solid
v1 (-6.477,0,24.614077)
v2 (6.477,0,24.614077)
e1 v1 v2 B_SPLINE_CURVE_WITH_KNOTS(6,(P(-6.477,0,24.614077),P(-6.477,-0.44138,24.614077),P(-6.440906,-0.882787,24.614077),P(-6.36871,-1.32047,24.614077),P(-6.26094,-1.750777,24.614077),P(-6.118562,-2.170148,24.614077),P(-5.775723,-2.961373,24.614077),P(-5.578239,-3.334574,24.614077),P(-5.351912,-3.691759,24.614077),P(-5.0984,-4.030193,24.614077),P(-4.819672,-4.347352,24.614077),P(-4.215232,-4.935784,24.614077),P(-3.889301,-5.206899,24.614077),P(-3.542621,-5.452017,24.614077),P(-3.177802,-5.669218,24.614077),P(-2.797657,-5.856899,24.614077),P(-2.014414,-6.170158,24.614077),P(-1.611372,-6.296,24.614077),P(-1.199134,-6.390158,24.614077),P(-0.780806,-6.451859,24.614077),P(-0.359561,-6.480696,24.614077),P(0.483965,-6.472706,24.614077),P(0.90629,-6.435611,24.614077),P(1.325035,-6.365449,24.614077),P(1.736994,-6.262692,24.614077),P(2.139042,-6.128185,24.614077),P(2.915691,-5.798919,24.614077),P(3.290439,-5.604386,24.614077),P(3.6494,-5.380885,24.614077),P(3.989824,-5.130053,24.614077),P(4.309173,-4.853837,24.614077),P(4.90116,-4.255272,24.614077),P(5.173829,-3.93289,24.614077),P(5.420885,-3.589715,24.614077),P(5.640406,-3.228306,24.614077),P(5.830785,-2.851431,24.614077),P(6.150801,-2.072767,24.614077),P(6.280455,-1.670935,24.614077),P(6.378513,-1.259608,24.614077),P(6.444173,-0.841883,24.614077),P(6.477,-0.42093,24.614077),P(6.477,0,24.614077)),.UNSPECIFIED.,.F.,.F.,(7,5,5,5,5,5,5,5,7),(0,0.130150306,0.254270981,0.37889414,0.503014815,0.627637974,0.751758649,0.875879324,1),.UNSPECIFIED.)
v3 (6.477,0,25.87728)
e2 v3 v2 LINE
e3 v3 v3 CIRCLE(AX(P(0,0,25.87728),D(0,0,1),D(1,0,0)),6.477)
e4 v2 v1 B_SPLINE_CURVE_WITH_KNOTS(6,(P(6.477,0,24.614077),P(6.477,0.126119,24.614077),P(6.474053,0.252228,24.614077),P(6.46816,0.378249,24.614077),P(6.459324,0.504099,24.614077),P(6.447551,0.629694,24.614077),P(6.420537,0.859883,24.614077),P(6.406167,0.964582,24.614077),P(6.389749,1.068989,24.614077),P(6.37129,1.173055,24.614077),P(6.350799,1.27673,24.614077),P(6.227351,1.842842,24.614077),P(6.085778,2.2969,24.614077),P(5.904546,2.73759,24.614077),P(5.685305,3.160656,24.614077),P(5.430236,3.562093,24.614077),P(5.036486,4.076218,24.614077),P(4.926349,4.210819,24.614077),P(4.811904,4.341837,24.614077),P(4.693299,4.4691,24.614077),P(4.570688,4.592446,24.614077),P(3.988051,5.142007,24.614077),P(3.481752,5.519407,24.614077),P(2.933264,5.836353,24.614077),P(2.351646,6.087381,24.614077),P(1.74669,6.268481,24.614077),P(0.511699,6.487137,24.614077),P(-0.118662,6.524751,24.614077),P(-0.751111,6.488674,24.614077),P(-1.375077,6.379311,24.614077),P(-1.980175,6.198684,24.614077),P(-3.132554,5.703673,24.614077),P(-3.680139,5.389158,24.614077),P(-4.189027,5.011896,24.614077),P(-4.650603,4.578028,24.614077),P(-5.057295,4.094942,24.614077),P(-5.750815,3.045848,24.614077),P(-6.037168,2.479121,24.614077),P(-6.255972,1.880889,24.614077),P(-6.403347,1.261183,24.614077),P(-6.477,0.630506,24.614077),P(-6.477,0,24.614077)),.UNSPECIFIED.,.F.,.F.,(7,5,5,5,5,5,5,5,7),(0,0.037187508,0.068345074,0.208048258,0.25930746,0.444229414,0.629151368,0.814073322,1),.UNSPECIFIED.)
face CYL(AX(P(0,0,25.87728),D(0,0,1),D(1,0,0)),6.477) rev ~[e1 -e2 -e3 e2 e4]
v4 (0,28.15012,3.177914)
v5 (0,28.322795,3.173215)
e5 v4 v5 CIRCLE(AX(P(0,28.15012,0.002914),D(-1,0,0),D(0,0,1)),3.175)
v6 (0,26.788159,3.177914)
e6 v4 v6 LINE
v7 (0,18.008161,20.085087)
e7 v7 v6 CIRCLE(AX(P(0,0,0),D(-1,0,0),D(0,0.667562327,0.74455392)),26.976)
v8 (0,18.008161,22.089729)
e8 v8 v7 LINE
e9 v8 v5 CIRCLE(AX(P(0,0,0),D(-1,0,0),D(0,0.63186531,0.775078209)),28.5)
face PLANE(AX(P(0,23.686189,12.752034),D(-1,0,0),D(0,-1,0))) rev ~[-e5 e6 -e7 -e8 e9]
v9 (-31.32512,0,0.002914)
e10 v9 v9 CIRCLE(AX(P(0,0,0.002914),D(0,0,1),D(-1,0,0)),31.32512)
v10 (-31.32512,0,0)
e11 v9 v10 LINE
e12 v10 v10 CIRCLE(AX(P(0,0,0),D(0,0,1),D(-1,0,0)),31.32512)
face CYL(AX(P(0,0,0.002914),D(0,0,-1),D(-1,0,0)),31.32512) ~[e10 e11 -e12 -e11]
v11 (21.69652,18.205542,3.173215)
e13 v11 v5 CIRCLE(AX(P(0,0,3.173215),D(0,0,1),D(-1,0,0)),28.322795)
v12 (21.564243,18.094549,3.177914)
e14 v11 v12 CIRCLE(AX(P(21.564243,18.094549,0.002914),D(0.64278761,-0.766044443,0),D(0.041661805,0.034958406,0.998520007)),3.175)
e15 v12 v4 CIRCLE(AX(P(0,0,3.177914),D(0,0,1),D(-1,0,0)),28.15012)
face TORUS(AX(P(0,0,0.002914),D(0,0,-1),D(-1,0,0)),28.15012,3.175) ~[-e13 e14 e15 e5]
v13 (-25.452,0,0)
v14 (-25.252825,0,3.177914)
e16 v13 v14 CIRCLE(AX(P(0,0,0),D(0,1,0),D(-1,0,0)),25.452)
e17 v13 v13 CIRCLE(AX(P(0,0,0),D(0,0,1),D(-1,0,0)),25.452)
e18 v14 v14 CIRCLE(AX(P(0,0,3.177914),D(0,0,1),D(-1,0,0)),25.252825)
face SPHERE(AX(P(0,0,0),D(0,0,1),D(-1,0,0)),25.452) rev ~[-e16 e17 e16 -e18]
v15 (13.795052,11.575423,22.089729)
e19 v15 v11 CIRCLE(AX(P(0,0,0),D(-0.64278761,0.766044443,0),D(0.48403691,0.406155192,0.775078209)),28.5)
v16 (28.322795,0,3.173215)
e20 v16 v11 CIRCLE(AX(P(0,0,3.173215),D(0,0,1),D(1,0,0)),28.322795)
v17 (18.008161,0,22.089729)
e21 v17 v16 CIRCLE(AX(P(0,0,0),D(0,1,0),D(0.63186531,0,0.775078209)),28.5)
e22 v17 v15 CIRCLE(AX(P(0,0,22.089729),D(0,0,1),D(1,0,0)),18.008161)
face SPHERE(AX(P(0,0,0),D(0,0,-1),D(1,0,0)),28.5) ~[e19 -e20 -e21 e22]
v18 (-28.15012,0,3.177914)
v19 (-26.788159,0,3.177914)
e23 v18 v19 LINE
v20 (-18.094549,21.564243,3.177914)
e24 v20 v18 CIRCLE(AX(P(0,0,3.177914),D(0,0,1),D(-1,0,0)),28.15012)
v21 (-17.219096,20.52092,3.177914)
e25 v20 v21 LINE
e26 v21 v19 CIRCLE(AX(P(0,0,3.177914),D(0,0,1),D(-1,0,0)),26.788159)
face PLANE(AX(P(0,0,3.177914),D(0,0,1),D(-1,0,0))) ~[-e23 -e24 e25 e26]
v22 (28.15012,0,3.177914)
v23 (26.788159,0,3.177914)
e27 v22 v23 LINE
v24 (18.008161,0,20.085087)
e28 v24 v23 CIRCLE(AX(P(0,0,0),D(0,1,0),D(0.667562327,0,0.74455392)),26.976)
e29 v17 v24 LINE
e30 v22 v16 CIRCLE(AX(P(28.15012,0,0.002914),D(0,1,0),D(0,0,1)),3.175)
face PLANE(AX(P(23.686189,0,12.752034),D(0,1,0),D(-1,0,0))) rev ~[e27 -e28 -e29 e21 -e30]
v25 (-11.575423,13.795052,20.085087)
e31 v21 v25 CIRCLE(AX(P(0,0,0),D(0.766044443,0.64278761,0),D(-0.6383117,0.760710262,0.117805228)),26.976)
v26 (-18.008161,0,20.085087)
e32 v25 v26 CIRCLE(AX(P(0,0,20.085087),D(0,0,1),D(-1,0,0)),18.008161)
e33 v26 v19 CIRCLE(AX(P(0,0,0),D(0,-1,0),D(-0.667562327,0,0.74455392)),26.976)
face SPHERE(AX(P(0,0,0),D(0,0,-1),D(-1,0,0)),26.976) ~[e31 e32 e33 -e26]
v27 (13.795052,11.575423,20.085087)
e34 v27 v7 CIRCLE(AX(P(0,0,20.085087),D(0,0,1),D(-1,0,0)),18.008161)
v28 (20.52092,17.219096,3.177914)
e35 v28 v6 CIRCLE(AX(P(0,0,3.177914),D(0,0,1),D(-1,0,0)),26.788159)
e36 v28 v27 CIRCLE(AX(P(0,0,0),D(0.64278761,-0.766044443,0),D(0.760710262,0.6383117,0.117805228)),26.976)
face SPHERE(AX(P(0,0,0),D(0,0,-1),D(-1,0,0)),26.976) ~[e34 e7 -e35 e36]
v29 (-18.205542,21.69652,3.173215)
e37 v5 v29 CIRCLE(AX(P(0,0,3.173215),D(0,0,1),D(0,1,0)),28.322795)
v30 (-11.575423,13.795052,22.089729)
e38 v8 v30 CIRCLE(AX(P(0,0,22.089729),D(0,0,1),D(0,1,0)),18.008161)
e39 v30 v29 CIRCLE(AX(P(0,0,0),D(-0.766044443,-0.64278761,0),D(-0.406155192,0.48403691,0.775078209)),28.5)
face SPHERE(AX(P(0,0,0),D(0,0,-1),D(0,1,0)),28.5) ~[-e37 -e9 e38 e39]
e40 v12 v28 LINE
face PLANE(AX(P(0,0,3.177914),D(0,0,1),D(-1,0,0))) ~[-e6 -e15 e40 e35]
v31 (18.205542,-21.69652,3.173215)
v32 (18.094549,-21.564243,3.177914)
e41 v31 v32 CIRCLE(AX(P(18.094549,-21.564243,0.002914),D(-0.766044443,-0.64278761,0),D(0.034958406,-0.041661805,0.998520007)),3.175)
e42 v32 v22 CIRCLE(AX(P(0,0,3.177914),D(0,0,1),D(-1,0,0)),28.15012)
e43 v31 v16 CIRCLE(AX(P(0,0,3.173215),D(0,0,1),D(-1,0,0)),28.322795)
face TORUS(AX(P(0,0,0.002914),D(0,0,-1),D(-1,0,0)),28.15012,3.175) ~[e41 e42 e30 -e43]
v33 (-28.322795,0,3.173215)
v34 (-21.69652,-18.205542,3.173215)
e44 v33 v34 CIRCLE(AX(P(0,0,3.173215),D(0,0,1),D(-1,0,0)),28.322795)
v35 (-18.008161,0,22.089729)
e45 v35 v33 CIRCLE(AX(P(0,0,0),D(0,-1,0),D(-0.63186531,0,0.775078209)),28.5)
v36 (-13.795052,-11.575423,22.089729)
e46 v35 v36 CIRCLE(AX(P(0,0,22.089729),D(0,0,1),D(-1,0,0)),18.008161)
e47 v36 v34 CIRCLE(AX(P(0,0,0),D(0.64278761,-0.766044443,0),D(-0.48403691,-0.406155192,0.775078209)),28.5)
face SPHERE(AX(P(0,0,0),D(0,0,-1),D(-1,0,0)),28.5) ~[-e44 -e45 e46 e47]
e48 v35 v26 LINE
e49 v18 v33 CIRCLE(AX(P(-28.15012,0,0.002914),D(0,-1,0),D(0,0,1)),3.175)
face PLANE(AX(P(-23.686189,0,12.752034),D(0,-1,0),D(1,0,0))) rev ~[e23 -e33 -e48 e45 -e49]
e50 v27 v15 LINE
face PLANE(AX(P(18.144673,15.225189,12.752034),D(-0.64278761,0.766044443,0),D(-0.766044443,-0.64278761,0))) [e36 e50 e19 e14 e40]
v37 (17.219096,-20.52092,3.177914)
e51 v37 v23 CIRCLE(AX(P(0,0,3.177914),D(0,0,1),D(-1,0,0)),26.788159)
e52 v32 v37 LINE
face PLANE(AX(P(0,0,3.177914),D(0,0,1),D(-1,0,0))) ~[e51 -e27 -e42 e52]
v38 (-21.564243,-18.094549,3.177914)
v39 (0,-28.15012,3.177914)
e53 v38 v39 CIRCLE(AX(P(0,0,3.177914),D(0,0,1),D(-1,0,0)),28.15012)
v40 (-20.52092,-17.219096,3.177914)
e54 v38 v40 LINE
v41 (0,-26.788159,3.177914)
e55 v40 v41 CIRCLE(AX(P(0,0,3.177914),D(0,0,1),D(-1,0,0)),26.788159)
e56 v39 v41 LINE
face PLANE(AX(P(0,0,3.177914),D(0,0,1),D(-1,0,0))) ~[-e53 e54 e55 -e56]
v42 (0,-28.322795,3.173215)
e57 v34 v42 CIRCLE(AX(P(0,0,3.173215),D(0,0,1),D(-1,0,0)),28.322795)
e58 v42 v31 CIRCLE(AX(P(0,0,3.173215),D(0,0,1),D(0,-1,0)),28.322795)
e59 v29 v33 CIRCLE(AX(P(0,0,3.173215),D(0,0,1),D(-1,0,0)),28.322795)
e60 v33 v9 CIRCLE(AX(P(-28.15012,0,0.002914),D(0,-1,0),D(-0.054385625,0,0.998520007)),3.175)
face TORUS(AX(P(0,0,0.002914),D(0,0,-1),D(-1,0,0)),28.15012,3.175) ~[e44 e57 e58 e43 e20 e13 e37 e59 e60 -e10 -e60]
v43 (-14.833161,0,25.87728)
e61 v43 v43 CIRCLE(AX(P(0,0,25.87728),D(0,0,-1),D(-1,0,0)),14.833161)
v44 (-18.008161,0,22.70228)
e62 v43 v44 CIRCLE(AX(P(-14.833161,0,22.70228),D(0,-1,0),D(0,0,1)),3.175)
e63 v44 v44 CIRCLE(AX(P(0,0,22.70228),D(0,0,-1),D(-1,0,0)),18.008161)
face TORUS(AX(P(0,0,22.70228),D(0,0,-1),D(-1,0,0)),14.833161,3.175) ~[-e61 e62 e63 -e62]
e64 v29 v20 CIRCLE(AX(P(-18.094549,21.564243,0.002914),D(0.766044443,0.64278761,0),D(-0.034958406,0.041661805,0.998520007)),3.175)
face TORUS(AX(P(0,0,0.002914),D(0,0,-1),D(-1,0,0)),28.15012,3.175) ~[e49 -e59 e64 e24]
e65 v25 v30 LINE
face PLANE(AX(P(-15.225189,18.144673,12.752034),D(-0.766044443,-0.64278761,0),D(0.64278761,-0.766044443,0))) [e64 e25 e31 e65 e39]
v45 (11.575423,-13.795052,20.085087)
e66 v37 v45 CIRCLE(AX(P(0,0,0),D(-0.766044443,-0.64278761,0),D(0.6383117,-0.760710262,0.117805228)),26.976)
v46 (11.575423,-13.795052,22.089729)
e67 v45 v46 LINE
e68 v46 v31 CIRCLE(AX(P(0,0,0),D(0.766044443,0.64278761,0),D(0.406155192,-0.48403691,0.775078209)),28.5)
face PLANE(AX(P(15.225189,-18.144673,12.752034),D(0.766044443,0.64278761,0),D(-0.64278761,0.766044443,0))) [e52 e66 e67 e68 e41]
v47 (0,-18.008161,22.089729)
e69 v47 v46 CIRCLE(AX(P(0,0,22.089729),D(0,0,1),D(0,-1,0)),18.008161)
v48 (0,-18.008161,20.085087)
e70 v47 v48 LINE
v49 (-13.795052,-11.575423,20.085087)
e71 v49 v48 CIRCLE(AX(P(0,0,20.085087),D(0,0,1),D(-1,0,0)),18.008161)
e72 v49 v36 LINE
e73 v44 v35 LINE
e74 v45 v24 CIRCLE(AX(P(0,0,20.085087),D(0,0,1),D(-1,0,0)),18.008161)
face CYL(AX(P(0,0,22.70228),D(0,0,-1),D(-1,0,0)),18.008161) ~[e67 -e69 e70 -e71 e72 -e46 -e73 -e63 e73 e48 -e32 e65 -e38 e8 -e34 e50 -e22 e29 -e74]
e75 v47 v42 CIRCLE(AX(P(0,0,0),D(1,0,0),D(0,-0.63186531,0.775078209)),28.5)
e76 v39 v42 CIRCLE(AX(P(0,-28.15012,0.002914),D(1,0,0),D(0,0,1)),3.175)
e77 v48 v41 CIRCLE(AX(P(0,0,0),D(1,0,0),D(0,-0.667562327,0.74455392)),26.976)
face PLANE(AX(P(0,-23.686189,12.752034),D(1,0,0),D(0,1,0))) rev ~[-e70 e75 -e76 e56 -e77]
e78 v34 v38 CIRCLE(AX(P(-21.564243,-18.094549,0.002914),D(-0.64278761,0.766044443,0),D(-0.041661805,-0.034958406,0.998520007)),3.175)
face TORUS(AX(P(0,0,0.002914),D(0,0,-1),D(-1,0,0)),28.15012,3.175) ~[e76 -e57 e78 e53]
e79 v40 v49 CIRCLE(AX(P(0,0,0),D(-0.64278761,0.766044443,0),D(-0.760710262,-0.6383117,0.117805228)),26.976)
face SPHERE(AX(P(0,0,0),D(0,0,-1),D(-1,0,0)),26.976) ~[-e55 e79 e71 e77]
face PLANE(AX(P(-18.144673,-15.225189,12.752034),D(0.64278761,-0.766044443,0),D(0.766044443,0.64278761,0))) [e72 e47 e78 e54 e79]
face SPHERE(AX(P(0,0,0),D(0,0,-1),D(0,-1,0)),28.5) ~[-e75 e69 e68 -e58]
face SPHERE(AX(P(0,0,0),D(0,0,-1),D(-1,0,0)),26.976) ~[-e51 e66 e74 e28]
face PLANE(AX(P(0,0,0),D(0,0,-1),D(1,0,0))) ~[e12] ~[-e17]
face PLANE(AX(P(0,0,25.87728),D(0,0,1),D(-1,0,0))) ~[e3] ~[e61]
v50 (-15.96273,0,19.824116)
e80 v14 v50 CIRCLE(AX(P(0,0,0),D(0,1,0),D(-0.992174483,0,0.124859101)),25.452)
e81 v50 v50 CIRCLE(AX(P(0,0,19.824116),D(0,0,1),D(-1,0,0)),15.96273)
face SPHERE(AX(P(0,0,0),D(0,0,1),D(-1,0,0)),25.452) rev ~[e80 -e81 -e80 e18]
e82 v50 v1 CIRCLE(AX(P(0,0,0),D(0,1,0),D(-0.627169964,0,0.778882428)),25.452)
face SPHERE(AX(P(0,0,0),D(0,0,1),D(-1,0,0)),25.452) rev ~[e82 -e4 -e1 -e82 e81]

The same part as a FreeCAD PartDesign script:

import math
import FreeCAD as App
import Part
import Sketcher
Q = App.Units.Quantity

doc = App.newDocument("Part")
body = doc.addObject("PartDesign::Body", "Body")

# Sketch on XZ plane
sketch1 = body.newObject("Sketcher::SketchObject", "Sketch")
sketch1.AttachmentSupport = (doc.getObject("XZ_Plane"), [""])
sketch1.MapMode = "FlatFace"
sketch1.addGeometry(Part.LineSegment(App.Vector(0, 25.452, 0), App.Vector(0, 25.8773, 0)), False)
sketch1.addGeometry(Part.LineSegment(App.Vector(0, 25.8773, 0), App.Vector(-14.8332, 25.8773, 0)), False)
sketch1.addGeometry(Part.ArcOfCircle(Part.Circle(App.Vector(-14.8332, 22.7023, 0), App.Vector(0, 0, 1), 3.175), math.radians(90), math.radians(180)), False)
sketch1.addGeometry(Part.LineSegment(App.Vector(-18.0082, 22.7023, 0), App.Vector(-18.0082, 20.0851, 0)), False)
sketch1.addGeometry(Part.ArcOfCircle(Part.Circle(App.Vector(0, 0, 0), App.Vector(0, 0, 1), 26.976), math.radians(132), math.radians(173)), False)
sketch1.addGeometry(Part.LineSegment(App.Vector(-26.7882, 3.1779, 0), App.Vector(-28.1501, 3.1779, 0)), False)
sketch1.addGeometry(Part.ArcOfCircle(Part.Circle(App.Vector(-28.1501, 0.0029, 0), App.Vector(0, 0, 1), 3.175), math.radians(90), math.radians(93.12)), False)
sketch1.addGeometry(Part.ArcOfCircle(Part.Circle(App.Vector(-28.1501, 0.0029, 0), App.Vector(0, 0, 1), 3.175), math.radians(93), math.radians(180)), False)
sketch1.addGeometry(Part.LineSegment(App.Vector(-31.3251, 0.0029, 0), App.Vector(-31.3251, 0, 0)), False)
sketch1.addGeometry(Part.LineSegment(App.Vector(-31.3251, 0, 0), App.Vector(-25.452, 0, 0)), False)
sketch1.addGeometry(Part.ArcOfCircle(Part.Circle(App.Vector(0, 0, 0), App.Vector(0, 0, 1), 25.452), math.radians(172.83), math.radians(180)), False)
sketch1.addGeometry(Part.ArcOfCircle(Part.Circle(App.Vector(0, 0, 0), App.Vector(0, 0, 1), 25.452), math.radians(129), math.radians(173)), False)
sketch1.addGeometry(Part.ArcOfCircle(Part.Circle(App.Vector(0, 0, 0), App.Vector(0, 0, 1), 25.452), math.radians(90), math.radians(129)), False)
sketch1.addConstraint(Sketcher.Constraint("Coincident", 0, 2, 1, 1))
sketch1.addConstraint(Sketcher.Constraint("Tangent", 1, 2, 2, 1))
sketch1.addConstraint(Sketcher.Constraint("Tangent", 2, 2, 3, 1))
sketch1.addConstraint(Sketcher.Constraint("Coincident", 3, 2, 4, 1))
sketch1.addConstraint(Sketcher.Constraint("Coincident", 4, 2, 5, 1))
sketch1.addConstraint(Sketcher.Constraint("Tangent", 5, 2, 6, 1))
sketch1.addConstraint(Sketcher.Constraint("Tangent", 6, 2, 7, 1))
sketch1.addConstraint(Sketcher.Constraint("Tangent", 7, 2, 8, 1))
sketch1.addConstraint(Sketcher.Constraint("Coincident", 8, 2, 9, 1))
sketch1.addConstraint(Sketcher.Constraint("Coincident", 9, 2, 10, 2))
sketch1.addConstraint(Sketcher.Constraint("Tangent", 10, 1, 11, 2))
sketch1.addConstraint(Sketcher.Constraint("Tangent", 11, 1, 12, 2))
sketch1.addConstraint(Sketcher.Constraint("Coincident", 12, 1, 0, 1))
sketch1.addConstraint(Sketcher.Constraint("Vertical", 0))
sketch1.addConstraint(Sketcher.Constraint("Horizontal", 1))
sketch1.addConstraint(Sketcher.Constraint("Vertical", 3))
sketch1.addConstraint(Sketcher.Constraint("Horizontal", 5))
sketch1.addConstraint(Sketcher.Constraint("Horizontal", 9))
sketch1.addConstraint(Sketcher.Constraint("Coincident", 4, 3, -1, 1))
sketch1.addConstraint(Sketcher.Constraint("Coincident", 10, 3, -1, 1))
sketch1.addConstraint(Sketcher.Constraint("Coincident", 12, 3, -1, 1))
sketch1.addConstraint(Sketcher.Constraint("Equal", 2, 6))
sketch1.addConstraint(Sketcher.Constraint("Equal", 6, 7))
sketch1.addConstraint(Sketcher.Constraint("PointOnObject", 0, 2, -2))
sketch1.addConstraint(Sketcher.Constraint("PointOnObject", 8, 2, -1))
sketch1.addConstraint(Sketcher.Constraint("Horizontal", 6, 3, 7, 2))
sketch1.addConstraint(Sketcher.Constraint("Horizontal", 5, 2, 10, 1))
sketch1.addConstraint(Sketcher.Constraint("Radius", 2, Q("0.125 in")))
sketch1.addConstraint(Sketcher.Constraint("Radius", 4, Q("26.976 mm")))
sketch1.addConstraint(Sketcher.Constraint("Radius", 10, Q("25.452 mm")))
sketch1.addConstraint(Sketcher.Constraint("DistanceX", 1, 2, 1, 1, Q("14.833161 mm")))
sketch1.addConstraint(Sketcher.Constraint("DistanceX", 5, 2, 5, 1, Q("1.361962 mm")))
sketch1.addConstraint(Sketcher.Constraint("DistanceX", 9, 1, 9, 2, Q("5.87312 mm")))
sketch1.addConstraint(Sketcher.Constraint("DistanceY", 0, 1, 0, 2, Q("0.42528 mm")))
sketch1.addConstraint(Sketcher.Constraint("DistanceY", 6, 2, 5, 2, Q("0.004699 mm")))
sketch1.addConstraint(Sketcher.Constraint("DistanceX", 11, 1, -1, 1, Q("15.96273 mm")))
revolution = body.newObject("PartDesign::Revolution", "Revolution")
revolution.Profile = sketch1
revolution.ReferenceAxis = (sketch1, ["V_Axis"])
revolution.Angle = 360

# Sketch on XZ plane
sketch2 = body.newObject("Sketcher::SketchObject", "Sketch001")
sketch2.AttachmentSupport = (doc.getObject("XZ_Plane"), [""])
sketch2.MapMode = "FlatFace"
sketch2.addGeometry(Part.ArcOfCircle(Part.Circle(App.Vector(0, 0, 0), App.Vector(0, 0, 1), 28.5), math.radians(129), math.radians(174)), False)
sketch2.addGeometry(Part.ArcOfCircle(Part.Circle(App.Vector(-28.15, 0, 0), App.Vector(0, 0, 1), 3.18), math.radians(90), math.radians(93.12)), False)
sketch2.addGeometry(Part.LineSegment(App.Vector(-28.15, 3.18, 0), App.Vector(-26.79, 3.18, 0)), False)
sketch2.addGeometry(Part.ArcOfCircle(Part.Circle(App.Vector(0, 0, 0), App.Vector(0, 0, 1), 26.98), math.radians(132), math.radians(173)), False)
sketch2.addGeometry(Part.LineSegment(App.Vector(-18.01, 20.09, 0), App.Vector(-18.01, 22.09, 0)), False)
sketch2.addConstraint(Sketcher.Constraint("Coincident", 0, 2, 1, 2))
sketch2.addConstraint(Sketcher.Constraint("Tangent", 1, 1, 2, 1))
sketch2.addConstraint(Sketcher.Constraint("Coincident", 2, 2, 3, 2))
sketch2.addConstraint(Sketcher.Constraint("Coincident", 3, 1, 4, 1))
sketch2.addConstraint(Sketcher.Constraint("Coincident", 4, 2, 0, 1))
sketch2.addConstraint(Sketcher.Constraint("Horizontal", 2))
sketch2.addConstraint(Sketcher.Constraint("Vertical", 4))
sketch2.addConstraint(Sketcher.Constraint("Coincident", 0, 3, -1, 1))
sketch2.addConstraint(Sketcher.Constraint("Coincident", 3, 3, -1, 1))
sketch2.addConstraint(Sketcher.Constraint("Radius", 1, Q("0.125 in")))
sketch2.addConstraint(Sketcher.Constraint("Radius", 0, Q("28.5 mm")))
sketch2.addConstraint(Sketcher.Constraint("Radius", 3, Q("26.976 mm")))
sketch2.addConstraint(Sketcher.Constraint("DistanceX", 2, 1, 2, 2, Q("1.361962 mm")))
sketch2.addConstraint(Sketcher.Constraint("DistanceY", 4, 1, 4, 2, Q("2.004642 mm")))
sketch2.addConstraint(Sketcher.Constraint("DistanceX", 1, 3, -1, 1, Q("28.15012 mm")))
revolution2 = body.newObject("PartDesign::Revolution", "Revolution001")
revolution2.Profile = sketch2
revolution2.ReferenceAxis = (sketch2, ["V_Axis"])
revolution2.Angle = 40
body2 = doc.addObject("PartDesign::Body", "Body001")
doc.recompute()

body2.BaseFeature = body
doc.recompute()

body3 = doc.addObject("PartDesign::Body", "Body002")
body3.BaseFeature = body
body3.Placement = App.Placement(App.Vector(0, 0, 0), App.Rotation(App.Vector(0, 0, 1), 90))
boolean = body2.newObject("PartDesign::Boolean", "Boolean")
boolean.Type = "Fuse"
boolean.addObjects([body3])
doc.recompute()

body4 = doc.addObject("PartDesign::Body", "Body003")
body4.BaseFeature = body
body4.Placement = App.Placement(App.Vector(0, 0, 0), App.Rotation(App.Vector(0, 0, 1), 180))
boolean2 = body2.newObject("PartDesign::Boolean", "Boolean001")
boolean2.Type = "Fuse"
boolean2.addObjects([body4])
doc.recompute()

body.Placement = App.Placement(App.Vector(0, 0, 0), App.Rotation(App.Vector(0, 0, 1), 270))
boolean3 = body2.newObject("PartDesign::Boolean", "Boolean002")
boolean3.Type = "Fuse"
boolean3.addObjects([body])

# Sketch on XY plane
sketch3 = body2.newObject("Sketcher::SketchObject", "Sketch002")
sketch3.AttachmentSupport = (doc.getObject("XY_Plane001"), [""])
sketch3.MapMode = "FlatFace"
sketch3.AttachmentOffset = App.Placement(App.Vector(0, 0, 25.87728), App.Rotation())
sketch3.addGeometry(Part.Circle(App.Vector(0, 0, 0), App.Vector(0, 0, 1), 6), False)
sketch3.addConstraint(Sketcher.Constraint("Coincident", 0, 3, -1, 1))
sketch3.addConstraint(Sketcher.Constraint("Diameter", 0, Q("0.51 in")))
pocket1 = body2.newObject("PartDesign::Pocket", "Pocket")
pocket1.Profile = sketch3
pocket1.Length = Q("1 in")

doc.recompute()
